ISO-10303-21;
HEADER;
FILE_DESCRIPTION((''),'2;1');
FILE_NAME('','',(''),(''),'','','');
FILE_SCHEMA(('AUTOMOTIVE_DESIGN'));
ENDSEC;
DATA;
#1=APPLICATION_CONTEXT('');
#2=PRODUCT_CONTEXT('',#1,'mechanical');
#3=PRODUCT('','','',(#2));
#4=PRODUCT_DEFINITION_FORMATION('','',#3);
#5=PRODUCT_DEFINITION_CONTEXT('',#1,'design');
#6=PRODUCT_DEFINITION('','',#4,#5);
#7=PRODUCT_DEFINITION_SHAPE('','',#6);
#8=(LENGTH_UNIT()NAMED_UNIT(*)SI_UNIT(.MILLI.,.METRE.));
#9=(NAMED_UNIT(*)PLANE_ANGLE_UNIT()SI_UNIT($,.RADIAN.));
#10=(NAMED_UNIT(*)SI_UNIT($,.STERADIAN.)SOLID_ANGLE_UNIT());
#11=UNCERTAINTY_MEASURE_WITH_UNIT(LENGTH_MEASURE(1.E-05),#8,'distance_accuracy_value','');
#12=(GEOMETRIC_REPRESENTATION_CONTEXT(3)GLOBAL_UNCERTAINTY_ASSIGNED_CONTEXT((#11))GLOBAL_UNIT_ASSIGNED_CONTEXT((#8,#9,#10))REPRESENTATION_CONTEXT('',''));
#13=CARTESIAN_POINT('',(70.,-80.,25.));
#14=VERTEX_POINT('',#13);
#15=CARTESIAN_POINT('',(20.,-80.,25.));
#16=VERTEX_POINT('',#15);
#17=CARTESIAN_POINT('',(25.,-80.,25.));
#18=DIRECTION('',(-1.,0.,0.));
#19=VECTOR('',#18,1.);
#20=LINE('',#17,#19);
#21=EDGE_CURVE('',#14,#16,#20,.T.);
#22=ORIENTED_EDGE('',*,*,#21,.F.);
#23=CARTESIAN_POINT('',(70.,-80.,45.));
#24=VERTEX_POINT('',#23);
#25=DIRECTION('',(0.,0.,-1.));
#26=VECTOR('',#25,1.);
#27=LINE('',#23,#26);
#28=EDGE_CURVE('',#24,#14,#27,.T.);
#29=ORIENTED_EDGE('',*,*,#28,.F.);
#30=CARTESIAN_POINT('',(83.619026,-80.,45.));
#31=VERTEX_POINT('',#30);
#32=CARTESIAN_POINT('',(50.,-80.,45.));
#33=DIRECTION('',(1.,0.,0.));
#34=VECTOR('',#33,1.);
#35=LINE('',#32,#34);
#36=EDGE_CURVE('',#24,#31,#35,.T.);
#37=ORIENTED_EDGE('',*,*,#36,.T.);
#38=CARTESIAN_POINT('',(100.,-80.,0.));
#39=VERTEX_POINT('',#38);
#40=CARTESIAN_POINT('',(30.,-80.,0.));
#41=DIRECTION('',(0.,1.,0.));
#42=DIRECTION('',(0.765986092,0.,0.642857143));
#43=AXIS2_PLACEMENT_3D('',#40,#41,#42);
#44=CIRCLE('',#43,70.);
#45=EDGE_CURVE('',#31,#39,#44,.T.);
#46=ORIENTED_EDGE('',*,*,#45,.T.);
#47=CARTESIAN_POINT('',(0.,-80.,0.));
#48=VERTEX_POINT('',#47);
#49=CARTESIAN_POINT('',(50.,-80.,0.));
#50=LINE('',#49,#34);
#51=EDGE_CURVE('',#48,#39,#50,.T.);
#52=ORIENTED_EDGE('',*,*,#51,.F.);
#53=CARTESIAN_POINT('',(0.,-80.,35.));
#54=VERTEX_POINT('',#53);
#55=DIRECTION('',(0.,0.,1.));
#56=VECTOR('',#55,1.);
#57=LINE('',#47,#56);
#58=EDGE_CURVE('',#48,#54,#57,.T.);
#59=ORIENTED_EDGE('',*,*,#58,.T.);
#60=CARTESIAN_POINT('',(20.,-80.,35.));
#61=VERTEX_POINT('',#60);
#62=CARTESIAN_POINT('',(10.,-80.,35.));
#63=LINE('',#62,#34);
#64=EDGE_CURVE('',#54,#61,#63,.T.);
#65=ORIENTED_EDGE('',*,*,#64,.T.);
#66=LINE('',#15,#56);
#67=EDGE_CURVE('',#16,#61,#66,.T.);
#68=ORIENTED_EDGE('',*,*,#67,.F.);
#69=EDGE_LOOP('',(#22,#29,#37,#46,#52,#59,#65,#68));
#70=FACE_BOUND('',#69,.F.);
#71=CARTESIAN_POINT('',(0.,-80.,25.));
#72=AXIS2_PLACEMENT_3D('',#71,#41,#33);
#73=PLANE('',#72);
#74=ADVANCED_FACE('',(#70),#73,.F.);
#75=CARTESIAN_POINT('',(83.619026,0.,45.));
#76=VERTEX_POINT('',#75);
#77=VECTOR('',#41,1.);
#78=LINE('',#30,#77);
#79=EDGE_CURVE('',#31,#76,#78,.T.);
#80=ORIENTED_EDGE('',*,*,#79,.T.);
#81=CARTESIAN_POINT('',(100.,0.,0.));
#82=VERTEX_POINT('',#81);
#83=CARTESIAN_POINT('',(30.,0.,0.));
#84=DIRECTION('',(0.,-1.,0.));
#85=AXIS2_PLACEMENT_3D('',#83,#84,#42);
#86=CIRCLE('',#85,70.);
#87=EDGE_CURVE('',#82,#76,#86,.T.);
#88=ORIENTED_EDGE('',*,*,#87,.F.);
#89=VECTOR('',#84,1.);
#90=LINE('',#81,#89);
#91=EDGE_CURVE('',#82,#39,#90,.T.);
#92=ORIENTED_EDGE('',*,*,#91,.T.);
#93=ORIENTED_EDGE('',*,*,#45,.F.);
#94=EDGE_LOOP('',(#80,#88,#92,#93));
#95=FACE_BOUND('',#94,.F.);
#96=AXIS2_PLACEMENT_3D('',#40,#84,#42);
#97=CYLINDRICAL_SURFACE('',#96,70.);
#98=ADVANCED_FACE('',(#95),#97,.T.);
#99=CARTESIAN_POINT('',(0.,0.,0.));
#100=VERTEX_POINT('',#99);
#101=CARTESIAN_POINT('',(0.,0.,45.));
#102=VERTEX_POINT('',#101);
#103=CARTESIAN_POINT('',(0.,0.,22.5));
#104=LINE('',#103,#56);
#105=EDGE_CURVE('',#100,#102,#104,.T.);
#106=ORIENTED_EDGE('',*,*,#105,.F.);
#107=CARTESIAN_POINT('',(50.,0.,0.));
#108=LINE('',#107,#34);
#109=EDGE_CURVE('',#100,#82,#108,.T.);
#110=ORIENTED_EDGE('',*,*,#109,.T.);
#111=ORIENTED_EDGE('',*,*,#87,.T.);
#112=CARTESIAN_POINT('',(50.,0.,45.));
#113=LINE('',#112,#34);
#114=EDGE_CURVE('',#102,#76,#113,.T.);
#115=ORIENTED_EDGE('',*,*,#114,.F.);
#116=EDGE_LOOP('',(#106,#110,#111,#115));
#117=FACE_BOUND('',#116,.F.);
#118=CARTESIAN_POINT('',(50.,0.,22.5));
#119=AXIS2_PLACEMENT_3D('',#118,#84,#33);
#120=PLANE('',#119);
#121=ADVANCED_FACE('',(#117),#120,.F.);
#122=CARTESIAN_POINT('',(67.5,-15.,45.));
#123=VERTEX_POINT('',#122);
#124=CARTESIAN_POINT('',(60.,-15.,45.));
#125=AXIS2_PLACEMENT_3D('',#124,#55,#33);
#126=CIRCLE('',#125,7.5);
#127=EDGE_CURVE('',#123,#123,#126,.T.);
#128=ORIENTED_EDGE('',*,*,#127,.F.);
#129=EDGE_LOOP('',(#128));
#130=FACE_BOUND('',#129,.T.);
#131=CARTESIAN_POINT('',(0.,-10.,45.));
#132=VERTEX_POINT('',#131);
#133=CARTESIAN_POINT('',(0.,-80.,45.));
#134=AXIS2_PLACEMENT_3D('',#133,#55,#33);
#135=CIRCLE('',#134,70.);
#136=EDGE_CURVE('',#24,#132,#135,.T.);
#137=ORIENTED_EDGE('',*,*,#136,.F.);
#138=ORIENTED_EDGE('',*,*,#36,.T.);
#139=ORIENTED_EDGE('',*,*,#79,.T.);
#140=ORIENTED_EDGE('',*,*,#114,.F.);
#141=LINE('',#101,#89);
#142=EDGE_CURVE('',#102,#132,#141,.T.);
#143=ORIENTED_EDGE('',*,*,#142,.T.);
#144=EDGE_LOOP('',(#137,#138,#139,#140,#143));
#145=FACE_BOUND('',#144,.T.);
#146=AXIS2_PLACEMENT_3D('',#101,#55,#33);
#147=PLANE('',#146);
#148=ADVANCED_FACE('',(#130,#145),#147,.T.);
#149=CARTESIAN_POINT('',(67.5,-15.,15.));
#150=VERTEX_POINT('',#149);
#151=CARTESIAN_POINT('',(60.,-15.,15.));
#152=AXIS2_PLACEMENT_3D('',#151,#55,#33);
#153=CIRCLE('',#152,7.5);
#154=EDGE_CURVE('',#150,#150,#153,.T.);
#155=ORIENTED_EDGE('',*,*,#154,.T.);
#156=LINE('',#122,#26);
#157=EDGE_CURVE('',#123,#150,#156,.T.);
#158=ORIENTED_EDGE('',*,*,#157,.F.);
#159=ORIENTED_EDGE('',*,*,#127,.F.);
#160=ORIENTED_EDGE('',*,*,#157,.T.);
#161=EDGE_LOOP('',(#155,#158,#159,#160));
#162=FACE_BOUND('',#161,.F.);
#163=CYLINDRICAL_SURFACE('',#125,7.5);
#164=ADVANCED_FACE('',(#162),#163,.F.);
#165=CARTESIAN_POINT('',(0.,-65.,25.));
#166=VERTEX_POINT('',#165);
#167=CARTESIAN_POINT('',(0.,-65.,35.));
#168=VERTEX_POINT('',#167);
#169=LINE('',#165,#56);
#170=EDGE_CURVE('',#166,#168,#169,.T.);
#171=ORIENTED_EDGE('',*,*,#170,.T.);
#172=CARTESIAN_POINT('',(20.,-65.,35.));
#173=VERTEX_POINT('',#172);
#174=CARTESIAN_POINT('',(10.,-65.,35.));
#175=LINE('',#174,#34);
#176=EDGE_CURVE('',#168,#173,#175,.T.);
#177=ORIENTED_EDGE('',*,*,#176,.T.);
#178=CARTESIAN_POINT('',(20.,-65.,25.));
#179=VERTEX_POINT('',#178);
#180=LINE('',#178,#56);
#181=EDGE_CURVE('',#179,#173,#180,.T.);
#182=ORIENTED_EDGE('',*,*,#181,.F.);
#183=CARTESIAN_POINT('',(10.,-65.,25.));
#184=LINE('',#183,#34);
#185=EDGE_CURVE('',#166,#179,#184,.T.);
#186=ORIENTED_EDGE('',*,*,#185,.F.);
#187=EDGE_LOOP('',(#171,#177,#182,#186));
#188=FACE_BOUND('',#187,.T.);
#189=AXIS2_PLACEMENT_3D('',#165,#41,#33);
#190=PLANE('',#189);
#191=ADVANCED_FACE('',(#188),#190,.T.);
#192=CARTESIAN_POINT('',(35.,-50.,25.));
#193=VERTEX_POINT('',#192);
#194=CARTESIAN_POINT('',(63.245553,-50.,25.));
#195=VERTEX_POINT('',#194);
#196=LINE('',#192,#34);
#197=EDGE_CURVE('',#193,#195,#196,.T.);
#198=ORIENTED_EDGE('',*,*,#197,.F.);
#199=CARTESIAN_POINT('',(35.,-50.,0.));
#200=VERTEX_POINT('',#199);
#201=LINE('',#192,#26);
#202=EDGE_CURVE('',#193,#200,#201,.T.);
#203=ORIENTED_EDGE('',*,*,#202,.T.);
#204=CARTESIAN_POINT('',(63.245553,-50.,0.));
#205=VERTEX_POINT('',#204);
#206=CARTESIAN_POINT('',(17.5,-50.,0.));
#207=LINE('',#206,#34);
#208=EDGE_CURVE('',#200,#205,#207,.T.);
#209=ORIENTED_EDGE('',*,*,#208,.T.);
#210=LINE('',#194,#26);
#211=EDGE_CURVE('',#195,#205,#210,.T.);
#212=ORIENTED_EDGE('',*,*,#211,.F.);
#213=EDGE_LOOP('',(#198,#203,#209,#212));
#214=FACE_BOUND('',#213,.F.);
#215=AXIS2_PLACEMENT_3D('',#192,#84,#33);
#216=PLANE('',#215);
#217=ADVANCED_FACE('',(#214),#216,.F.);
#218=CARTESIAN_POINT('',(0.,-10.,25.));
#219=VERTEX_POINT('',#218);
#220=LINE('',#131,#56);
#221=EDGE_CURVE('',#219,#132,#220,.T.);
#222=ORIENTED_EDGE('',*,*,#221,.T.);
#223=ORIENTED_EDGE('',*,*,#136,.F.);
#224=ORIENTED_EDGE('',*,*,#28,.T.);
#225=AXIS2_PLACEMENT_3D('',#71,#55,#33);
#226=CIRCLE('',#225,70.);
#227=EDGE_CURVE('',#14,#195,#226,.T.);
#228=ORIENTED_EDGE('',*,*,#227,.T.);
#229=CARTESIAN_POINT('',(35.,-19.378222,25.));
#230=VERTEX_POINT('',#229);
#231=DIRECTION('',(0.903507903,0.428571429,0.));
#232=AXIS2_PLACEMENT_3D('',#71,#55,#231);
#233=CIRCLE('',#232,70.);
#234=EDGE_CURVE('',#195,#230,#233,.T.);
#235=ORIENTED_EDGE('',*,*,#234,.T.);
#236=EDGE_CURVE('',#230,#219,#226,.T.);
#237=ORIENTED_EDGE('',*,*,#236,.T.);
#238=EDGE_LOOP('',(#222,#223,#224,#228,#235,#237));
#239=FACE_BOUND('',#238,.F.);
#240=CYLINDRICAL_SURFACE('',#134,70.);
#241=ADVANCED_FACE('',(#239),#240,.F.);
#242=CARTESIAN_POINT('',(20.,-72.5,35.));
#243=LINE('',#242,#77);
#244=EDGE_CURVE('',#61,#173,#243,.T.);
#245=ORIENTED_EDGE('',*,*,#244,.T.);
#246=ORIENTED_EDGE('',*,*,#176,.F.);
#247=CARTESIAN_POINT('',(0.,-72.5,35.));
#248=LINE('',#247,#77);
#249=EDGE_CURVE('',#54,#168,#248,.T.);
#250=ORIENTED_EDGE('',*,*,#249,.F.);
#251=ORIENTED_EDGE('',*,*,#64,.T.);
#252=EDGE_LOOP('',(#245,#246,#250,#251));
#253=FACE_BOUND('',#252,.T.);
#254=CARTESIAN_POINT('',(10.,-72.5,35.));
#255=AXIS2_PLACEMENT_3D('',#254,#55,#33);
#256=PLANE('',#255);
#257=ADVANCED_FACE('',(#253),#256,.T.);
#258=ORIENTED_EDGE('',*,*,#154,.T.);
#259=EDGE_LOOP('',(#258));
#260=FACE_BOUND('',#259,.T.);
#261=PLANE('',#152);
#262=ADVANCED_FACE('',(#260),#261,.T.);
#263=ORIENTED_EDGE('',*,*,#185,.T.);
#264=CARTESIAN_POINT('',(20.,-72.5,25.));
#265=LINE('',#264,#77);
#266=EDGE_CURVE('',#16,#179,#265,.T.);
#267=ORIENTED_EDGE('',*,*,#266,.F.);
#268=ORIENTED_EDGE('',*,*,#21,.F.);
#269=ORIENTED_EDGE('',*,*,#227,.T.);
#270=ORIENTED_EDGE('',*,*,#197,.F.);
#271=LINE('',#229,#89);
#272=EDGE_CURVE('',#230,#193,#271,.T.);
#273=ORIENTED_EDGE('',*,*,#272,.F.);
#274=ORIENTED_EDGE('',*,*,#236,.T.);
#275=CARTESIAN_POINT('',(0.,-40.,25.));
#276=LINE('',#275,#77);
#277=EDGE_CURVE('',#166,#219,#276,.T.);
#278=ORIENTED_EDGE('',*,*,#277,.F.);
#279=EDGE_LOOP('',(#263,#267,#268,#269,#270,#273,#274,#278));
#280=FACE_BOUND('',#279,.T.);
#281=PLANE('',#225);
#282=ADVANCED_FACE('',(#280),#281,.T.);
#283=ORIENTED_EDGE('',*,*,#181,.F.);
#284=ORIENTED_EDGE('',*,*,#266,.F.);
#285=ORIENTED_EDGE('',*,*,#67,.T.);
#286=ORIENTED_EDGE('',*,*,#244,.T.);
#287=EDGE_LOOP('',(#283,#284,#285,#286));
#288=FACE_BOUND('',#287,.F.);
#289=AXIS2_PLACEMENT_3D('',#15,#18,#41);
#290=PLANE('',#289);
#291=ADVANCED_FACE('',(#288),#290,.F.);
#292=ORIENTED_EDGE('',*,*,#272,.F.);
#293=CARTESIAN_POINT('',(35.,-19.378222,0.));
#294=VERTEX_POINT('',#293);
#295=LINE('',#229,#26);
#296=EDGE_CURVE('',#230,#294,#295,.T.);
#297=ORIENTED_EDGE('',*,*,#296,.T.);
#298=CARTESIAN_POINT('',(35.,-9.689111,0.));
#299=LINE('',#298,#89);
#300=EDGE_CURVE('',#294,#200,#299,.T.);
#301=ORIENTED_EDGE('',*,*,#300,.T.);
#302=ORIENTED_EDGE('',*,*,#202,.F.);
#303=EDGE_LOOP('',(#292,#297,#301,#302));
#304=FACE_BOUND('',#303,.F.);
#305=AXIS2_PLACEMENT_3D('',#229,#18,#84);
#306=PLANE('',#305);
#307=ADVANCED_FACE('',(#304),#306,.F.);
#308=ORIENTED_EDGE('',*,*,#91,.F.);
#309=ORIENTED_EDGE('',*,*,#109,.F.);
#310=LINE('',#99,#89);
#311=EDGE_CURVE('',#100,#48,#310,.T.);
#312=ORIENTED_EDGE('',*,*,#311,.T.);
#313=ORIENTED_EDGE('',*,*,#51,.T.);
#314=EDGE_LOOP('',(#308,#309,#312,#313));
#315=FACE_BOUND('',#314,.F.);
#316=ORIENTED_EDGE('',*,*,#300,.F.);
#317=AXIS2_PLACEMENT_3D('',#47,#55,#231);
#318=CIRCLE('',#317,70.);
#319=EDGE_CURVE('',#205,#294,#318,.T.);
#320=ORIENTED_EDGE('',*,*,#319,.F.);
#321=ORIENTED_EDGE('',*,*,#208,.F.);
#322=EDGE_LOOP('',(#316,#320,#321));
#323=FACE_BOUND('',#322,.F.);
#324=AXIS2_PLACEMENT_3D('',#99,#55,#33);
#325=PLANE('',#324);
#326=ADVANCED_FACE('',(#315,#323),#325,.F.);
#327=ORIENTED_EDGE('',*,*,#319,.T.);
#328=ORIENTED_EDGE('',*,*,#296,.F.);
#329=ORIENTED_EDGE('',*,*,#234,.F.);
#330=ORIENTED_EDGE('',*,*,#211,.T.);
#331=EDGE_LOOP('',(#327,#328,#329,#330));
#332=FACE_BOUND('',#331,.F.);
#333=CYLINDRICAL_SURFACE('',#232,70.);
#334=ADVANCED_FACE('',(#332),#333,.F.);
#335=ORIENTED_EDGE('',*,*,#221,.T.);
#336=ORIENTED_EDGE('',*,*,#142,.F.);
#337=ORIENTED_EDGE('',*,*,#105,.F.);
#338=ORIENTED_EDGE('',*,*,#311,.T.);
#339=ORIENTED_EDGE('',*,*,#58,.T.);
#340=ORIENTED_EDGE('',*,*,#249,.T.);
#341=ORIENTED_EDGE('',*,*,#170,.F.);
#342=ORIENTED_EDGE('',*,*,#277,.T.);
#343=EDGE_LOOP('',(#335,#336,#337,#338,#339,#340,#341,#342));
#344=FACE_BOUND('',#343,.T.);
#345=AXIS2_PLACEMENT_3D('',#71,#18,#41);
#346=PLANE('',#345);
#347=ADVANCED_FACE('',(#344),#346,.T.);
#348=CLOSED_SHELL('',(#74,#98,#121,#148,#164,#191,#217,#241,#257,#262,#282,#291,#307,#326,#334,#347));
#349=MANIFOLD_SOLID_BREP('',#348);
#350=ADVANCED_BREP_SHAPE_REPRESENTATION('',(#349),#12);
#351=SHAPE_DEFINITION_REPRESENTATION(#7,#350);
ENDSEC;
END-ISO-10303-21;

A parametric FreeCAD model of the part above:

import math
import FreeCAD as App
import Part
import Sketcher
from FreeCAD import Vector
Q = App.Units.Quantity


def add_polygon(sketch, points):
    """Adds a closed chain of lines whose ends are joined by coincident constraints."""
    first, n = sketch.GeometryCount, len(points)
    for a, b in zip(points, points[1:] + points[:1]):
        sketch.addGeometry(Part.LineSegment(App.Vector(*a, 0), App.Vector(*b, 0)), False)
    for i in range(n):
        sketch.addConstraint(Sketcher.Constraint("Coincident", first + i, 2, first + (i + 1) % n, 1))

doc = App.newDocument("Part")
params = doc.addObject("Spreadsheet::Sheet", "Params")
for row, (alias, value) in enumerate([
    ("sketch1_width", "100 mm"),
    ("sketch1_height", "45 mm"),
    ("pad1_length", "80 mm"),
    ("sketch2_diameter", "15 mm"),
    ("pocket1_length", "30 mm"),
    ("sketch3_diameter", "140 mm"),
    ("pocket2_length", "20 mm"),
    ("sketch4_width", "20 mm"),
    ("sketch4_height", "15 mm"),
    ("pad2_length", "10 mm"),
    ("sketch5_radius", "70 mm"),
    ("sketch6_radius", "70 mm"),
    ("sketch6_height", "45 mm"),
], start=1):
    params.set(f"A{row}", alias)
    params.set(f"B{row}", "=" + value)
    params.setAlias(f"B{row}", alias)

body = doc.addObject("PartDesign::Body", "Body")

# Sketch on XZ plane
sketch1 = body.newObject("Sketcher::SketchObject", "Sketch")
sketch1.AttachmentSupport = (doc.getObject("XZ_Plane"), [""])
sketch1.MapMode = "FlatFace"
add_polygon(sketch1, [(0, 45), (0, 0), (100, 0), (100, 45)])  # lines 0-3
sketch1.addConstraint([
    Sketcher.Constraint("Vertical", 0),
    Sketcher.Constraint("Horizontal", 1),
    Sketcher.Constraint("Vertical", 2),
    Sketcher.Constraint("Horizontal", 3),
    Sketcher.Constraint("Coincident", 0, 2, -1, 1),
    Sketcher.Constraint("DistanceX", 1, 1, 1, 2, Q("100 mm")),
    Sketcher.Constraint("DistanceY", 0, 2, 0, 1, Q("45 mm")),
])
sketch1.setExpression("Constraints[9]", "Params.sketch1_width")
sketch1.setExpression("Constraints[10]", "Params.sketch1_height")
pad1 = body.newObject("PartDesign::Pad", "Pad")
pad1.Profile = sketch1
pad1.setExpression("Length", "Params.pad1_length")

# Sketch on XY plane
sketch2 = body.newObject("Sketcher::SketchObject", "Sketch001")
sketch2.AttachmentSupport = (doc.getObject("XY_Plane"), [""])
sketch2.MapMode = "FlatFace"
sketch2.AttachmentOffset = App.Placement(Vector(0, 0, 45), App.Rotation())
sketch2.addGeometry(Part.Circle(Vector(60, -15, 0), Vector(0, 0, 1), 8), False)
sketch2.addConstraint([
    Sketcher.Constraint("Diameter", 0, Q("15 mm")),
    Sketcher.Constraint("DistanceX", -1, 1, 0, 3, Q("60 mm")),
    Sketcher.Constraint("DistanceY", 0, 3, -1, 1, Q("15 mm")),
])
sketch2.setExpression("Constraints[0]", "Params.sketch2_diameter")
pocket1 = body.newObject("PartDesign::Pocket", "Pocket")
pocket1.Profile = sketch2
pocket1.setExpression("Length", "Params.pocket1_length")

# Sketch on XY plane
sketch3 = body.newObject("Sketcher::SketchObject", "Sketch002")
sketch3.AttachmentSupport = (doc.getObject("XY_Plane"), [""])
sketch3.MapMode = "FlatFace"
sketch3.AttachmentOffset = App.Placement(Vector(0, 0, 45), App.Rotation())
sketch3.addGeometry(Part.Circle(Vector(0, -80, 0), Vector(0, 0, 1), 70), False)
sketch3.addConstraint([
    Sketcher.Constraint("PointOnObject", 0, 3, -2),
    Sketcher.Constraint("Diameter", 0, Q("140 mm")),
    Sketcher.Constraint("DistanceY", 0, 3, -1, 1, Q("80 mm")),
])
sketch3.setExpression("Constraints[1]", "Params.sketch3_diameter")
pocket2 = body.newObject("PartDesign::Pocket", "Pocket001")
pocket2.Profile = sketch3
pocket2.setExpression("Length", "Params.pocket2_length")

# Sketch on XY plane
sketch4 = body.newObject("Sketcher::SketchObject", "Sketch003")
sketch4.AttachmentSupport = (doc.getObject("XY_Plane"), [""])
sketch4.MapMode = "FlatFace"
sketch4.AttachmentOffset = App.Placement(Vector(0, 0, 25), App.Rotation())
add_polygon(sketch4, [(0, -65), (0, -80), (20, -80), (20, -65)])  # lines 0-3
sketch4.addConstraint([
    Sketcher.Constraint("Vertical", 0),
    Sketcher.Constraint("Horizontal", 1),
    Sketcher.Constraint("Vertical", 2),
    Sketcher.Constraint("Horizontal", 3),
    Sketcher.Constraint("PointOnObject", 0, 2, -2),
    Sketcher.Constraint("DistanceX", 1, 1, 1, 2, Q("20 mm")),
    Sketcher.Constraint("DistanceY", 0, 2, 0, 1, Q("15 mm")),
    Sketcher.Constraint("DistanceY", 0, 2, -1, 1, Q("80 mm")),
])
sketch4.setExpression("Constraints[9]", "Params.sketch4_width")
sketch4.setExpression("Constraints[10]", "Params.sketch4_height")
pad2 = body.newObject("PartDesign::Pad", "Pad001")
pad2.Profile = sketch4
pad2.setExpression("Length", "Params.pad2_length")

# Sketch on XY plane
sketch5 = body.newObject("Sketcher::SketchObject", "Sketch004")
sketch5.AttachmentSupport = (doc.getObject("XY_Plane"), [""])
sketch5.MapMode = "FlatFace"
sketch5.AttachmentOffset = App.Placement(Vector(0, 0, 25), App.Rotation())
sketch5.addGeometry([
    Part.ArcOfCircle(Part.Circle(Vector(0, -80, 0), Vector(0, 0, 1), 70), math.radians(25), math.radians(60)),
    Part.LineSegment(Vector(35, -19, 0), Vector(35, -50, 0)),
    Part.LineSegment(Vector(35, -50, 0), Vector(63, -50, 0)),
], False)
sketch5.addConstraint([
    Sketcher.Constraint("Coincident", 0, 2, 1, 1),
    Sketcher.Constraint("Coincident", 1, 2, 2, 1),
    Sketcher.Constraint("Coincident", 2, 2, 0, 1),
    Sketcher.Constraint("Vertical", 1),
    Sketcher.Constraint("Horizontal", 2),
    Sketcher.Constraint("PointOnObject", 0, 3, -2),
    Sketcher.Constraint("Radius", 0, Q("70 mm")),
    Sketcher.Constraint("DistanceY", 0, 3, -1, 1, Q("80 mm")),
    Sketcher.Constraint("DistanceX", -1, 1, 0, 2, Q("35 mm")),
    Sketcher.Constraint("DistanceY", 1, 2, -1, 1, Q("50 mm")),
])
sketch5.setExpression("Constraints[6]", "Params.sketch5_radius")
pocket3 = body.newObject("PartDesign::Pocket", "Pocket002")
pocket3.Profile = sketch5
pocket3.Type = "ThroughAll"

# Sketch on XZ plane
sketch6 = body.newObject("Sketcher::SketchObject", "Sketch005")
sketch6.AttachmentSupport = (doc.getObject("XZ_Plane"), [""])
sketch6.MapMode = "FlatFace"
sketch6.AttachmentOffset = App.Placement(Vector(0, 0, 80), App.Rotation())
sketch6.addGeometry([
    Part.ArcOfCircle(Part.Circle(Vector(30, 0, 0), Vector(0, 0, 1), 70), math.radians(0), math.radians(40)),
    Part.LineSegment(Vector(100, 0, 0), Vector(100, 45, 0)),
    Part.LineSegment(Vector(100, 45, 0), Vector(84, 45, 0)),
], False)
sketch6.addConstraint([
    Sketcher.Constraint("Tangent", 0, 1, 1, 1),
    Sketcher.Constraint("Coincident", 1, 2, 2, 1),
    Sketcher.Constraint("Coincident", 2, 2, 0, 2),
    Sketcher.Constraint("Vertical", 1),
    Sketcher.Constraint("Horizontal", 2),
    Sketcher.Constraint("PointOnObject", 0, 3, -1),
    Sketcher.Constraint("Radius", 0, Q("70 mm")),
    Sketcher.Constraint("DistanceY", 1, 1, 1, 2, Q("45 mm")),
    Sketcher.Constraint("DistanceX", -1, 1, 0, 3, Q("30 mm")),
])
sketch6.setExpression("Constraints[6]", "Params.sketch6_radius")
sketch6.setExpression("Constraints[7]", "Params.sketch6_height")
pocket4 = body.newObject("PartDesign::Pocket", "Pocket003")
pocket4.Profile = sketch6
pocket4.Type = "ThroughAll"

doc.recompute()
